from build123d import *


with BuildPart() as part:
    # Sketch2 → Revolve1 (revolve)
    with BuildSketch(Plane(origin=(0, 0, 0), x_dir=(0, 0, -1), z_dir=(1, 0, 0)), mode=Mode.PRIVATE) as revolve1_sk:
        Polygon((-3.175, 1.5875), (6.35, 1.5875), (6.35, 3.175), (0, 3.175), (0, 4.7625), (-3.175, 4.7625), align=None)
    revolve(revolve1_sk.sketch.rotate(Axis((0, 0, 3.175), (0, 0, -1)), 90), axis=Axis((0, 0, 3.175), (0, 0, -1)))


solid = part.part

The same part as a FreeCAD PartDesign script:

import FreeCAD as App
import Part
import Sketcher

V = App.Vector
Q = App.Units.Quantity

doc = App.newDocument("Part")
body = doc.addObject("PartDesign::Body", "Body")

# Sketch on YZ plane
sketch1 = body.newObject("Sketcher::SketchObject", "Sketch")
sketch1.AttachmentSupport = (doc.getObject("YZ_Plane"), [""])
sketch1.MapMode = "FlatFace"
sketch1.addGeometry([
    Part.LineSegment(V(1.5875, 3.175, 0), V(1.5875, -6.35, 0)),  # 0
    Part.LineSegment(V(1.5875, -6.35, 0), V(3.175, -6.35, 0)),  # 1
    Part.LineSegment(V(3.175, -6.35, 0), V(3.175, 0, 0)),  # 2
    Part.LineSegment(V(3.175, 0, 0), V(4.7625, 0, 0)),  # 3
    Part.LineSegment(V(4.7625, 0, 0), V(4.7625, 3.175, 0)),  # 4
    Part.LineSegment(V(4.7625, 3.175, 0), V(1.5875, 3.175, 0)),  # 5
], False)
sketch1.addConstraint([
    Sketcher.Constraint("Coincident", 0, 2, 1, 1),
    Sketcher.Constraint("Coincident", 1, 2, 2, 1),
    Sketcher.Constraint("Coincident", 2, 2, 3, 1),
    Sketcher.Constraint("Coincident", 3, 2, 4, 1),
    Sketcher.Constraint("Coincident", 4, 2, 5, 1),
    Sketcher.Constraint("Coincident", 5, 2, 0, 1),
    Sketcher.Constraint("Vertical", 0),
    Sketcher.Constraint("Horizontal", 1),
    Sketcher.Constraint("Vertical", 2),
    Sketcher.Constraint("Horizontal", 3),
    Sketcher.Constraint("Vertical", 4),
    Sketcher.Constraint("Horizontal", 5),
    Sketcher.Constraint("PointOnObject", 2, 2, -1),
    Sketcher.Constraint("Equal", 1, 3),
    Sketcher.Constraint("Equal", 5, 4),
    Sketcher.Constraint("DistanceY", 2, 1, 2, 2, Q("0.25 in")),
    Sketcher.Constraint("DistanceX", 1, 1, 1, 2, Q("0.0625 in")),
    Sketcher.Constraint("DistanceX", -1, 1, 0, 2, Q("0.0625 in")),
])
revolution = body.newObject("PartDesign::Revolution", "Revolution")
revolution.Profile = sketch1
revolution.ReferenceAxis = (sketch1, ["V_Axis"])
revolution.Angle = 360

doc.recompute()
